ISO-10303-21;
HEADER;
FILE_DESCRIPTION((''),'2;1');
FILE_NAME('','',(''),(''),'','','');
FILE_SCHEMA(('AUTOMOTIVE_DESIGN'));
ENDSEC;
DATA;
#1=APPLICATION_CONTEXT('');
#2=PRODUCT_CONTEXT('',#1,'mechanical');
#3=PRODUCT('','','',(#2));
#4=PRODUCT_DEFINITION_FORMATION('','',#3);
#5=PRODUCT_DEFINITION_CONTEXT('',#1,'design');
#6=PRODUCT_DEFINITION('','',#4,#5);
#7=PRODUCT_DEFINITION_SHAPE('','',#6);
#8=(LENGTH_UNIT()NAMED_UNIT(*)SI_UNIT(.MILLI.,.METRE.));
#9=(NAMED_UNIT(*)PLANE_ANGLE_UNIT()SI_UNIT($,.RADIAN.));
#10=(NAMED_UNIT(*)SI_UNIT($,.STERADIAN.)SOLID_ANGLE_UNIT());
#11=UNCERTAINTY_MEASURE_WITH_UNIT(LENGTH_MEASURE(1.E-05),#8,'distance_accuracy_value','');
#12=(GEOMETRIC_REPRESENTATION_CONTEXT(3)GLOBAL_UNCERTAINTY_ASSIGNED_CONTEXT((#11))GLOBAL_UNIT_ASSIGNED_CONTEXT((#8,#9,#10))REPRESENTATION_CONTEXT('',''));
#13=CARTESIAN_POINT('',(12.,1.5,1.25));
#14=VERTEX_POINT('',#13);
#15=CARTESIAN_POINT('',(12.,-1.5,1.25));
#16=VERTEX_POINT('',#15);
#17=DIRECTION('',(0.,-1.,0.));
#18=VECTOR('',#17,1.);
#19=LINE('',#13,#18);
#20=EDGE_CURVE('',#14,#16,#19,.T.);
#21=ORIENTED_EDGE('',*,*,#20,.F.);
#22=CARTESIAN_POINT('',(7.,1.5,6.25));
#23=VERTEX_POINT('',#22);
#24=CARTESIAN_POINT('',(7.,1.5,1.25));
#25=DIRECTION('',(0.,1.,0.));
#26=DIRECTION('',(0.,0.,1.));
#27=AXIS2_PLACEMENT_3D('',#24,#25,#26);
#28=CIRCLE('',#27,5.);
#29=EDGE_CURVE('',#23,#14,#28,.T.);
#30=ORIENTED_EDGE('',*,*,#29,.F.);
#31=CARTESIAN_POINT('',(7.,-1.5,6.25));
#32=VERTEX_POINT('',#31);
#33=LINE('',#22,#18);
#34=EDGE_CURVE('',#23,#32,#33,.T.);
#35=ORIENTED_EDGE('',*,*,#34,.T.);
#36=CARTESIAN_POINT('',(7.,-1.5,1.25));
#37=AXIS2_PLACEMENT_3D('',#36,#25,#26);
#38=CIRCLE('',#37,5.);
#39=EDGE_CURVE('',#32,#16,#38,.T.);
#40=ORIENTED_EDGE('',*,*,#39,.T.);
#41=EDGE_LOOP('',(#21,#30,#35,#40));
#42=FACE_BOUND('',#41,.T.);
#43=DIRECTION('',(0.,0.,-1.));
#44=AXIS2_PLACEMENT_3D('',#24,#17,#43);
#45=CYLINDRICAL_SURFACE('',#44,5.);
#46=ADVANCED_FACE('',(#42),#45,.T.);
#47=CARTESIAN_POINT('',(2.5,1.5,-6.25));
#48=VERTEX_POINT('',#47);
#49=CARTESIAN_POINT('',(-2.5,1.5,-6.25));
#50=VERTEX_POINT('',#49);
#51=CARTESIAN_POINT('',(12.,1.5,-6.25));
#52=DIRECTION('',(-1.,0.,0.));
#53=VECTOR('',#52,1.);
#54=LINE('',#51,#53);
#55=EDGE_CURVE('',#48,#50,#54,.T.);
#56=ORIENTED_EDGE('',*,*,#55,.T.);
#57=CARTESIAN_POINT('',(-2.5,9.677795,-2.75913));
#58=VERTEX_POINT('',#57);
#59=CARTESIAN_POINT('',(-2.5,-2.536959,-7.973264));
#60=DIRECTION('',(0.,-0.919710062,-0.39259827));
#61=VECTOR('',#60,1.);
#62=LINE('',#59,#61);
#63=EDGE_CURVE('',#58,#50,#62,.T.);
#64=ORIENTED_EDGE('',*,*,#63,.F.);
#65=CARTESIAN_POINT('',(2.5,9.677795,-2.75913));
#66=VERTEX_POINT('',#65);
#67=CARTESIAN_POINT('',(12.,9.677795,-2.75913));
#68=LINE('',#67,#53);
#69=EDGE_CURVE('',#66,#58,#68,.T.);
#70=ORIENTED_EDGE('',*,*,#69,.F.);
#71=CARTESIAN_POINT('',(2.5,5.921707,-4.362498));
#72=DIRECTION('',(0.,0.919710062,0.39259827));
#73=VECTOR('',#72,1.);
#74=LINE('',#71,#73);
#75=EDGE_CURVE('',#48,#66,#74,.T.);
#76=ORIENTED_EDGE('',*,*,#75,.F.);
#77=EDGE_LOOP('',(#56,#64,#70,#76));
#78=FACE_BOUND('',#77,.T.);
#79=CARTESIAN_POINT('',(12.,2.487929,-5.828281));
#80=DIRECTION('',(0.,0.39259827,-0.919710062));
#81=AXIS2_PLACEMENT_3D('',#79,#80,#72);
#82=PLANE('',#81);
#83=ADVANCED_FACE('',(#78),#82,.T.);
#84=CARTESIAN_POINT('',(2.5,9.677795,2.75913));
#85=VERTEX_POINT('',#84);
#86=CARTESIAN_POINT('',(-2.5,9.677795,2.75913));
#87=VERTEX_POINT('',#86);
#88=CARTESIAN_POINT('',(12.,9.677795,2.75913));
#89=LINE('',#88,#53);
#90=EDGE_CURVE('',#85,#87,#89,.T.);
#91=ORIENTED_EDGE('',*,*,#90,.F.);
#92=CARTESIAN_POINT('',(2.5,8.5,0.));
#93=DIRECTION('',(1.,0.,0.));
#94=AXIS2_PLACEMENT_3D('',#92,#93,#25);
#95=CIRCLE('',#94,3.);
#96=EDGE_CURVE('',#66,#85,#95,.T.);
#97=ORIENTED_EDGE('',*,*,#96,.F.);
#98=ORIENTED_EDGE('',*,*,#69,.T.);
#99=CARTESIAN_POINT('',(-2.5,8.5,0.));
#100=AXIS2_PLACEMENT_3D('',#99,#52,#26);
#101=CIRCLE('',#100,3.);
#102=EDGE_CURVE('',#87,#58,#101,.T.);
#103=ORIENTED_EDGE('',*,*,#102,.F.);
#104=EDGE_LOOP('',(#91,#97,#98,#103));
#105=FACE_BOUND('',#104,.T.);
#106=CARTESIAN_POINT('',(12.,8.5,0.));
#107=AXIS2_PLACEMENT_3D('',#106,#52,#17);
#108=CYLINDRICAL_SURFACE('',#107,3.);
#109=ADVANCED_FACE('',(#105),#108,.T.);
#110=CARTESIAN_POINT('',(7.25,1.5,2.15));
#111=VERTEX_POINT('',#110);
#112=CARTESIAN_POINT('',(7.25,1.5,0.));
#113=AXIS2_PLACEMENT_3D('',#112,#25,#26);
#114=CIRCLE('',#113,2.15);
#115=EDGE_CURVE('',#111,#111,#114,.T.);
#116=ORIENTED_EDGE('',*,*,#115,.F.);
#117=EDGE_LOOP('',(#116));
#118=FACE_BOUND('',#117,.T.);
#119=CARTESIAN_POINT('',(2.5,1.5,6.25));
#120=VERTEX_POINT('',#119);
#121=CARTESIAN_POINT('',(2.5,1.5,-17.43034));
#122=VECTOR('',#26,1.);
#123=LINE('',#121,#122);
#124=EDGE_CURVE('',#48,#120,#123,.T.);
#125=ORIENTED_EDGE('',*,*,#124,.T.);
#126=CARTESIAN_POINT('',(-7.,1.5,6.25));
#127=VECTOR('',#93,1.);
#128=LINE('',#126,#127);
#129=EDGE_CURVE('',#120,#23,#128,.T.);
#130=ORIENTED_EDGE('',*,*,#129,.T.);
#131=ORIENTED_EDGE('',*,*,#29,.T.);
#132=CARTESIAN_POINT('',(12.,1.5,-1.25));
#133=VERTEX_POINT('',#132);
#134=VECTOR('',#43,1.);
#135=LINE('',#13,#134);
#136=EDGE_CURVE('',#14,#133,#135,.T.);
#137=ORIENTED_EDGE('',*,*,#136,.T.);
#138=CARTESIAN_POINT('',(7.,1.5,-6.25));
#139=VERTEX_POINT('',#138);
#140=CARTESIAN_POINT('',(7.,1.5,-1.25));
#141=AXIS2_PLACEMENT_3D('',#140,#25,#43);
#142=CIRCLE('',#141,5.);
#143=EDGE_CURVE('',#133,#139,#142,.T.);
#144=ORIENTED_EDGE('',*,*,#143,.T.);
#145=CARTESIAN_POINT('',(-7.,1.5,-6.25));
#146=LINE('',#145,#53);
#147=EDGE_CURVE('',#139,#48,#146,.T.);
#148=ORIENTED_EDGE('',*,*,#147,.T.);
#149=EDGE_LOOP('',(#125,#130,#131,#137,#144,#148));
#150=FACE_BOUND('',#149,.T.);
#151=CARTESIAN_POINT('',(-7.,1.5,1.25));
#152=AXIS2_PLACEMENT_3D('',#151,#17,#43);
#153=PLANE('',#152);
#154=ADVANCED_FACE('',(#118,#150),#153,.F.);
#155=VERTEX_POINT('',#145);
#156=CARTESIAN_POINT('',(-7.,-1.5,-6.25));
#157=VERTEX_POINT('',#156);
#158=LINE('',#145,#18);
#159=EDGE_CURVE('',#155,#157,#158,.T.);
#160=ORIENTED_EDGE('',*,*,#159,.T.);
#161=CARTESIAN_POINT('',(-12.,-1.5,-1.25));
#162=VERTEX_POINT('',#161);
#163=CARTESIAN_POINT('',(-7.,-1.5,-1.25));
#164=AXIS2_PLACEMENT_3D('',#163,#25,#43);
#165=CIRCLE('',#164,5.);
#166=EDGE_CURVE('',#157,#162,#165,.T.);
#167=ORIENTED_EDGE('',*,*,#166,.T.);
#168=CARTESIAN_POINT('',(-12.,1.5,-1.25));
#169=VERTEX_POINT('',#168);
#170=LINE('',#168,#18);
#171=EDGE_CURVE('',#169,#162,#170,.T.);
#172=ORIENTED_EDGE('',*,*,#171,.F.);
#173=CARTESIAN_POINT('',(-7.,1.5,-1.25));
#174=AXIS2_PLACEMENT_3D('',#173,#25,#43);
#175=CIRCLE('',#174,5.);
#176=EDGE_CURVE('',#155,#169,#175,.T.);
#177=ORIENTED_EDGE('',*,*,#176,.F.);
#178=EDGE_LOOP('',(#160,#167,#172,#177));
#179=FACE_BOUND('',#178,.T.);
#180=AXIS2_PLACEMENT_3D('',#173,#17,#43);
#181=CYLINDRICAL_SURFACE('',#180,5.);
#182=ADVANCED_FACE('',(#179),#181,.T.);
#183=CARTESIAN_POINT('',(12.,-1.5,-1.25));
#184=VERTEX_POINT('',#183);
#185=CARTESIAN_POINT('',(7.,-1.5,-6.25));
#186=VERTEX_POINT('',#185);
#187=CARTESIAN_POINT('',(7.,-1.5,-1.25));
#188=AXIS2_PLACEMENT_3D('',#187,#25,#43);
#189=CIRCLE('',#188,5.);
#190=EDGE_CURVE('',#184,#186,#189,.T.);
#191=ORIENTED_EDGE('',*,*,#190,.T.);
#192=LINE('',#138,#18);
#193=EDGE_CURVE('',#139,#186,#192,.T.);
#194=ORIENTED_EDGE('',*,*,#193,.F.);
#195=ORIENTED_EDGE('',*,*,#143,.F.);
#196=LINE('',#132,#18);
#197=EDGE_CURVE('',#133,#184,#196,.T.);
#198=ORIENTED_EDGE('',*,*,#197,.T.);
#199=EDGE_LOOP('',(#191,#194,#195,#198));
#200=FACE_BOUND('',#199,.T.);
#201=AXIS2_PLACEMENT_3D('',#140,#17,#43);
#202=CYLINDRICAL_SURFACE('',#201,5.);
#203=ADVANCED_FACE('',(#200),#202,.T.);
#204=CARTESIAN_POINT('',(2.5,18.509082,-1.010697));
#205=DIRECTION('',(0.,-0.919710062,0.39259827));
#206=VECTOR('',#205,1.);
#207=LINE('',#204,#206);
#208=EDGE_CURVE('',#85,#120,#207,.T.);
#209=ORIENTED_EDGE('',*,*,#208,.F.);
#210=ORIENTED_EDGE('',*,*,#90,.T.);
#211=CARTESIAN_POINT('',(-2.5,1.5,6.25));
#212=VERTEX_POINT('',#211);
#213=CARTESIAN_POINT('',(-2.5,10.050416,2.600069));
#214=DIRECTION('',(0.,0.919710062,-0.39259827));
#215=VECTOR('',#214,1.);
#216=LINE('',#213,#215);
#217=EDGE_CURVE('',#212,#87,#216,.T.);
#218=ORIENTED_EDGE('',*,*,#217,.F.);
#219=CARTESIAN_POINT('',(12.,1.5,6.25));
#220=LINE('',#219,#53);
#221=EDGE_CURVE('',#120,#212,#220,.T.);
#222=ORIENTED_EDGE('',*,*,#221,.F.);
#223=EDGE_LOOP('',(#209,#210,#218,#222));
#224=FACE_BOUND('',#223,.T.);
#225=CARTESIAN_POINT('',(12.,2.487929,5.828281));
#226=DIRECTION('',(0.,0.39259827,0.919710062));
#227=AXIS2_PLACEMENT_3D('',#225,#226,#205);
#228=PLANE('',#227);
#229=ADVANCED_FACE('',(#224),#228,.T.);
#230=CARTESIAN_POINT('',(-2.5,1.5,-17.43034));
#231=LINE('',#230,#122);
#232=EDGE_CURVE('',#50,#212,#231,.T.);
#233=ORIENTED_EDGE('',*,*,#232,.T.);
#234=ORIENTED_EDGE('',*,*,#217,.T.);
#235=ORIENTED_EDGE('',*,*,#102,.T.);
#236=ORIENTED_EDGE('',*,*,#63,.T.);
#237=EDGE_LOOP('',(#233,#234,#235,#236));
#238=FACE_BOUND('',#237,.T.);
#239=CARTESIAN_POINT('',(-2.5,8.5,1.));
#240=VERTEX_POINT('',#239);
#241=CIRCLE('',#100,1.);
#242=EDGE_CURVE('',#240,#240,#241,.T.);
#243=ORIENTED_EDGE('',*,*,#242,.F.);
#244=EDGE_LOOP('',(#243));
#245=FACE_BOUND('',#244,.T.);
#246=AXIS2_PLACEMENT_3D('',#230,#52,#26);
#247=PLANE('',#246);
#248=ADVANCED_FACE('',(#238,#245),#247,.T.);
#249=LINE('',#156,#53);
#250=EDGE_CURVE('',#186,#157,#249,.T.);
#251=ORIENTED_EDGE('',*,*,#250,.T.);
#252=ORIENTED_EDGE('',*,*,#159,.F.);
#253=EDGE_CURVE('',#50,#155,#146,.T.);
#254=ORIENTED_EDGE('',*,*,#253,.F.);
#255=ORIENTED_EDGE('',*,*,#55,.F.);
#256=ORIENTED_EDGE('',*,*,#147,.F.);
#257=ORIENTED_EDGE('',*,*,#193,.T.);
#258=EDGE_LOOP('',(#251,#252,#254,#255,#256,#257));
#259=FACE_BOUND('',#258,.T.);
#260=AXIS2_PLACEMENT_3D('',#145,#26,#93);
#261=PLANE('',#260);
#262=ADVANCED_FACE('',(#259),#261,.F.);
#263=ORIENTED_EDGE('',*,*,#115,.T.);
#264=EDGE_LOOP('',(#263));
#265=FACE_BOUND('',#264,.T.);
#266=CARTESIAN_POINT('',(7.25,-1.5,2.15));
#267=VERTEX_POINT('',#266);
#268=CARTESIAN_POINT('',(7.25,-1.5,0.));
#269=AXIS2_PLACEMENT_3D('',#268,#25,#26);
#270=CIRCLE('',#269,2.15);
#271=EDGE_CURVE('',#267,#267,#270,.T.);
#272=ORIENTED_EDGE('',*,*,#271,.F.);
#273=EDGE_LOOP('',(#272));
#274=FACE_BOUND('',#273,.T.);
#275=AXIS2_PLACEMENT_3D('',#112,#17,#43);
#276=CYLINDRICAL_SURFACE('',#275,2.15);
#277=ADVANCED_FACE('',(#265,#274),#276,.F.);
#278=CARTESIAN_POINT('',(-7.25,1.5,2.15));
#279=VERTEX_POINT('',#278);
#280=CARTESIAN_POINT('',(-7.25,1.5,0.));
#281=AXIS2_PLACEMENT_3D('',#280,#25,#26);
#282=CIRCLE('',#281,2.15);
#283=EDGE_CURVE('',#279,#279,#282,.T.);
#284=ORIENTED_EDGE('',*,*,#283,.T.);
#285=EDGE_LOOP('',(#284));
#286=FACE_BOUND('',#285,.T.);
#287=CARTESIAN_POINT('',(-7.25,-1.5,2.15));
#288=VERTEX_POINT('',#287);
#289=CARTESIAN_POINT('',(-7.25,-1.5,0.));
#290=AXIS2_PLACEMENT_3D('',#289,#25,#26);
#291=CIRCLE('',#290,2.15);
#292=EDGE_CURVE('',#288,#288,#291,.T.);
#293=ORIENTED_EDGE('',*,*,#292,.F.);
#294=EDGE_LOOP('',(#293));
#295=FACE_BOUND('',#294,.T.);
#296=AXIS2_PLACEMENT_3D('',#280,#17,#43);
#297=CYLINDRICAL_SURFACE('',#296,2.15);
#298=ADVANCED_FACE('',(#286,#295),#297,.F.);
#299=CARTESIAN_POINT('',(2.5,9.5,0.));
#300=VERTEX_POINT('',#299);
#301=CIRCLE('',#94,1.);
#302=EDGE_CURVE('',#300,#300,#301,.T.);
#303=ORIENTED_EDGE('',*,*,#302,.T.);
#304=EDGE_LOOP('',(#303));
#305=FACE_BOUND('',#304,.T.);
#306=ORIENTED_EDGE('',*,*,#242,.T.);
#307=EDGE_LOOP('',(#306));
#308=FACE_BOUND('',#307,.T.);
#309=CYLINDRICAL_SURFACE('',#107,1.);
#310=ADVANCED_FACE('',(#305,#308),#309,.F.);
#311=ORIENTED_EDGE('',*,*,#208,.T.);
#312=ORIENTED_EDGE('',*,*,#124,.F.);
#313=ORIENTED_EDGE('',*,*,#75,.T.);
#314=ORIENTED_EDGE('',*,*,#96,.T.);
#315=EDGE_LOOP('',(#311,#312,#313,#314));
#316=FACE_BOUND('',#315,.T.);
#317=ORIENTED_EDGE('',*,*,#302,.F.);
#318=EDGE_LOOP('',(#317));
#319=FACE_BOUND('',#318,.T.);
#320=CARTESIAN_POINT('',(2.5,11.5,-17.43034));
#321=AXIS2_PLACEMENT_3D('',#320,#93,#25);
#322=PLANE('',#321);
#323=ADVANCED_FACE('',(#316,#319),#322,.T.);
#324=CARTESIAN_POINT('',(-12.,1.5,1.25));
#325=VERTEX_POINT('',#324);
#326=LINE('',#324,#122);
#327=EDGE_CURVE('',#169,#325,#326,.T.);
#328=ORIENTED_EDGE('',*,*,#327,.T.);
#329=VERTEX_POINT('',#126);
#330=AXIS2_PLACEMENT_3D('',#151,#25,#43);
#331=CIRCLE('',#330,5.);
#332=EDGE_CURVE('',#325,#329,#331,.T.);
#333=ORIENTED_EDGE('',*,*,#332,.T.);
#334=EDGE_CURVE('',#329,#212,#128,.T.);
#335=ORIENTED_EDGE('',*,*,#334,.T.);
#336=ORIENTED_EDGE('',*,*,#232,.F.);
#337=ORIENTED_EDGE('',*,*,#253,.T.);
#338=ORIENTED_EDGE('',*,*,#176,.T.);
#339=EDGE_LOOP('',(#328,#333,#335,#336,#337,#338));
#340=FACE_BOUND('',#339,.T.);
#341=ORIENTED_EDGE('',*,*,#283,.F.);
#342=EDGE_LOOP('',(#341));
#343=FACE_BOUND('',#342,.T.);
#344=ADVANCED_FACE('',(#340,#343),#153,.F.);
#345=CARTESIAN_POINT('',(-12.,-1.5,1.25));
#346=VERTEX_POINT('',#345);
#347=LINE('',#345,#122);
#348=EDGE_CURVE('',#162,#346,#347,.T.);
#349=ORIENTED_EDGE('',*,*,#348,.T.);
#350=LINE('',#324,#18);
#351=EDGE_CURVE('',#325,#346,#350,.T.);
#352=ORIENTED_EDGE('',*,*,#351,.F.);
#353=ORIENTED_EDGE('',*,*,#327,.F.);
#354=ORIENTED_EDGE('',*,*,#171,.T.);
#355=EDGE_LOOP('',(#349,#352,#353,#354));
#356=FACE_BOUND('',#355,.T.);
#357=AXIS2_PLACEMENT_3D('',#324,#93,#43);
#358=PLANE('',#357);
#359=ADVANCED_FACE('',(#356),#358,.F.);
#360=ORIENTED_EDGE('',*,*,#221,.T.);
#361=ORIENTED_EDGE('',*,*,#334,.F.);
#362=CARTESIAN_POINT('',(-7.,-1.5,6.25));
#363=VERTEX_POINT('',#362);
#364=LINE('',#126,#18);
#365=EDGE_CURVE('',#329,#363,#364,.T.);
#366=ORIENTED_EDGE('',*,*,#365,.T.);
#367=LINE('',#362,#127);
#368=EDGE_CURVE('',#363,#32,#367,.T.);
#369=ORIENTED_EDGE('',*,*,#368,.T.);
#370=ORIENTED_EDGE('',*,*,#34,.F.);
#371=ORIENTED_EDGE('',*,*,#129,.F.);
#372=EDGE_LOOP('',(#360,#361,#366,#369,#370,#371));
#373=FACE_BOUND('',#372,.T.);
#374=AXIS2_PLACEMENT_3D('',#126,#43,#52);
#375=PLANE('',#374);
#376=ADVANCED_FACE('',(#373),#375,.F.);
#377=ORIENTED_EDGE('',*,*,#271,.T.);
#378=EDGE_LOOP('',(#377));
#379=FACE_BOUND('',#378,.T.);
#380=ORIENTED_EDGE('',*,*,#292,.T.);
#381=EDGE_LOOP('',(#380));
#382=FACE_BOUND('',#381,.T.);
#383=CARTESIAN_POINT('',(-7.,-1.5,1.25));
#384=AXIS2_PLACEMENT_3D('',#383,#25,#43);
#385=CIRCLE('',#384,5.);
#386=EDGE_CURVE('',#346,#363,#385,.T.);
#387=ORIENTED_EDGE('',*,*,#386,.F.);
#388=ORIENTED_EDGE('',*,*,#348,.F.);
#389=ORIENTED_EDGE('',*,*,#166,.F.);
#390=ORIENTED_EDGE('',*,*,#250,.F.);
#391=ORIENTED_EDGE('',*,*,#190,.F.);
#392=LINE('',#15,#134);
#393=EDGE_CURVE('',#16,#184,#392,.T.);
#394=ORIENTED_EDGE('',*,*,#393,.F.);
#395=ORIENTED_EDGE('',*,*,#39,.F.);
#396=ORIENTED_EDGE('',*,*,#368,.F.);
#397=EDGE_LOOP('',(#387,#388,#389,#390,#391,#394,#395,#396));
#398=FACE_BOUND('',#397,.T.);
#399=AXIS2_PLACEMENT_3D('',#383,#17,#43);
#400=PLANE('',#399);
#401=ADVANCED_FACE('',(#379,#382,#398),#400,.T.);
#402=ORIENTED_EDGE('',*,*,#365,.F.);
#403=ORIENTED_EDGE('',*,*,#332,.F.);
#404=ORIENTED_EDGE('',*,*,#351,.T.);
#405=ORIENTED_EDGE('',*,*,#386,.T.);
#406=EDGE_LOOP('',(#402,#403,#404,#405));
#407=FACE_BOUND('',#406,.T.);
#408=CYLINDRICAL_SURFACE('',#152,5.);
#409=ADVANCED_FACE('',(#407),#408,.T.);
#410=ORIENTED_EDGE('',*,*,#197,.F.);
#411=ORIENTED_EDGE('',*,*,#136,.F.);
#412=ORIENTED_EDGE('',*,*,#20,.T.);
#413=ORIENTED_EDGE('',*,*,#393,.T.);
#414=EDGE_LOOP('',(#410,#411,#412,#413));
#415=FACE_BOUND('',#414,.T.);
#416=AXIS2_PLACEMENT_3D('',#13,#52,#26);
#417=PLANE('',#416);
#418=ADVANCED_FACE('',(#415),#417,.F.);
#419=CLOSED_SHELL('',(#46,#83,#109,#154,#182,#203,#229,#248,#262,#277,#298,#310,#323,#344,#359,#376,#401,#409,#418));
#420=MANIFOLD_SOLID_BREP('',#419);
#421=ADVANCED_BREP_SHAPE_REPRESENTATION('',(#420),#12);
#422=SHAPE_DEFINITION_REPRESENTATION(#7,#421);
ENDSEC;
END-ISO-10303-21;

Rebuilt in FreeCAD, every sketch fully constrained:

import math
import FreeCAD as App
import Part
import Sketcher

V = App.Vector


def add_polygon(sketch, points):
    """Adds a closed chain of lines whose ends are joined by coincident constraints."""
    first, n = sketch.GeometryCount, len(points)
    for a, b in zip(points, points[1:] + points[:1]):
        sketch.addGeometry(Part.LineSegment(App.Vector(*a, 0), App.Vector(*b, 0)), False)
    for i in range(n):
        sketch.addConstraint(Sketcher.Constraint("Coincident", first + i, 2, first + (i + 1) % n, 1))

doc = App.newDocument("Part")
body = doc.addObject("PartDesign::Body", "Body")

# Sketch on XZ plane
sketch1 = doc.addObject("Sketcher::SketchObject", "Sketch")
body.addObject(sketch1)
sketch1.AttachmentSupport = (doc.XZ_Plane, [""])
sketch1.MapMode = "FlatFace"
sketch1.addGeometry([
    Part.LineSegment(V(-7, 6.2, 0), V(7, 6.2, 0)),  # 0
    Part.ArcOfCircle(Part.Circle(V(7, 1.2, 0), V(0, 0, 1), 5), math.radians(0), math.radians(90)),  # 1
    Part.LineSegment(V(12, 1.2, 0), V(12, -1.2, 0)),  # 2
    Part.ArcOfCircle(Part.Circle(V(7, -1.2, 0), V(0, 0, 1), 5), math.radians(-90), math.radians(0)),  # 3
    Part.LineSegment(V(7, -6.2, 0), V(-7, -6.2, 0)),  # 4
    Part.ArcOfCircle(Part.Circle(V(-7, -1.2, 0), V(0, 0, 1), 5), math.radians(180), math.radians(270)),  # 5
    Part.LineSegment(V(-12, -1.2, 0), V(-12, 1.2, 0)),  # 6
    Part.ArcOfCircle(Part.Circle(V(-7, 1.2, 0), V(0, 0, 1), 5), math.radians(90), math.radians(180)),  # 7
    Part.Circle(V(-7.2, 0, 0), V(0, 0, 1), 2.1),  # 8
    Part.Circle(V(7.2, 0, 0), V(0, 0, 1), 2.1),  # 9
], False)
sketch1.addConstraint([
    Sketcher.Constraint("Tangent", 0, 2, 1, 2),
    Sketcher.Constraint("Tangent", 1, 1, 2, 1),
    Sketcher.Constraint("Tangent", 2, 2, 3, 2),
    Sketcher.Constraint("Tangent", 3, 1, 4, 1),
    Sketcher.Constraint("Tangent", 4, 2, 5, 2),
    Sketcher.Constraint("Tangent", 5, 1, 6, 1),
    Sketcher.Constraint("Tangent", 6, 2, 7, 2),
    Sketcher.Constraint("Tangent", 7, 1, 0, 1),
    Sketcher.Constraint("Horizontal", 0),
    Sketcher.Constraint("Vertical", 2),
    Sketcher.Constraint("Horizontal", 4),
    Sketcher.Constraint("Vertical", 6),
    Sketcher.Constraint("Equal", 1, 3),
    Sketcher.Constraint("Equal", 3, 5),
    Sketcher.Constraint("Equal", 5, 7),
    Sketcher.Constraint("Equal", 8, 9),
    Sketcher.Constraint("Symmetric", 1, 3, 5, 3, -1, 1),
    Sketcher.Constraint("Symmetric", 8, 3, 9, 3, -1, 1),
    Sketcher.Constraint("PointOnObject", 8, 3, -1),
    Sketcher.Constraint("Radius", 1, 5.0),
    Sketcher.Constraint("Diameter", 8, 4.3),
    Sketcher.Constraint("DistanceX", 0, 1, 0, 2, 14.0),
    Sketcher.Constraint("DistanceY", 2, 2, 2, 1, 2.5),
    Sketcher.Constraint("DistanceX", 8, 3, 9, 3, 14.5),
])
pad1 = doc.addObject("PartDesign::Pad", "Pad")
body.addObject(pad1)
pad1.Profile = sketch1
pad1.Length = 3
pad1.Midplane = True

# Sketch on XY plane
sketch2 = doc.addObject("Sketcher::SketchObject", "Sketch001")
body.addObject(sketch2)
sketch2.AttachmentSupport = (doc.XY_Plane, [""])
sketch2.MapMode = "FlatFace"
sketch2.AttachmentOffset = App.Placement(V(0, 0, 6.25), App.Rotation())
add_polygon(sketch2, [(-2, 12), (-2, 2), (2, 2), (2, 12)])  # lines 0-3
sketch2.addConstraint([
    Sketcher.Constraint("Vertical", 0),
    Sketcher.Constraint("Horizontal", 1),
    Sketcher.Constraint("Vertical", 2),
    Sketcher.Constraint("Horizontal", 3),
    Sketcher.Constraint("DistanceX", 1, 1, 1, 2, 5.0),
    Sketcher.Constraint("DistanceY", 0, 2, 0, 1, 10.0),
    Sketcher.Constraint("DistanceX", 0, 2, -1, 1, 2.5),
    Sketcher.Constraint("DistanceY", -1, 1, 0, 2, 1.5),
])
pad2 = doc.addObject("PartDesign::Pad", "Pad001")
body.addObject(pad2)
pad2.Profile = sketch2
pad2.Length = 12.5
pad2.Reversed = True

# Sketch on YZ plane
sketch3 = doc.addObject("Sketcher::SketchObject", "Sketch002")
body.addObject(sketch3)
sketch3.AttachmentSupport = (doc.YZ_Plane, [""])
sketch3.MapMode = "FlatFace"
sketch3.AttachmentOffset = App.Placement(V(0, 0, -2.5), App.Rotation())
sketch3.addGeometry([
    Part.LineSegment(V(1.5, -6.2, 0), V(9.7, -2.8, 0)),  # 0
    Part.ArcOfCircle(Part.Circle(V(8.5, 0, 0), V(0, 0, 1), 3), math.radians(-67), math.radians(0)),  # 1
    Part.LineSegment(V(11.5, 0, 0), V(11.5, -6.2, 0)),  # 2
    Part.LineSegment(V(11.5, -6.2, 0), V(1.5, -6.2, 0)),  # 3
    Part.LineSegment(V(11.5, 6.2, 0), V(11.5, 0, 0)),  # 4
    Part.ArcOfCircle(Part.Circle(V(8.5, 0, 0), V(0, 0, 1), 3), math.radians(0), math.radians(67)),  # 5
    Part.LineSegment(V(9.7, 2.8, 0), V(1.5, 6.2, 0)),  # 6
    Part.LineSegment(V(1.5, 6.2, 0), V(11.5, 6.2, 0)),  # 7
    Part.Circle(V(8.5, 0, 0), V(0, 0, 1), 1),  # 8
], False)
sketch3.addConstraint([
    Sketcher.Constraint("Tangent", 0, 2, 1, 1),
    Sketcher.Constraint("Tangent", 1, 2, 2, 1),
    Sketcher.Constraint("Coincident", 2, 2, 3, 1),
    Sketcher.Constraint("Coincident", 3, 2, 0, 1),
    Sketcher.Constraint("Tangent", 4, 2, 5, 1),
    Sketcher.Constraint("Tangent", 5, 2, 6, 1),
    Sketcher.Constraint("Coincident", 6, 2, 7, 1),
    Sketcher.Constraint("Coincident", 7, 2, 4, 1),
    Sketcher.Constraint("Vertical", 2),
    Sketcher.Constraint("Horizontal", 3),
    Sketcher.Constraint("Vertical", 4),
    Sketcher.Constraint("Horizontal", 7),
    Sketcher.Constraint("Coincident", 5, 3, 1, 3),
    Sketcher.Constraint("Coincident", 8, 3, 1, 3),
    Sketcher.Constraint("Equal", 1, 5),
    Sketcher.Constraint("Symmetric", 0, 2, 5, 2, -1),
    Sketcher.Constraint("Vertical", 3, 2, 6, 2),
    Sketcher.Constraint("Diameter", 8, 2.0),
    Sketcher.Constraint("Radius", 1, 3.0),
    Sketcher.Constraint("DistanceX", 3, 2, 3, 1, 10.0),
    Sketcher.Constraint("DistanceY", 2, 2, 2, 1, 6.25),
    Sketcher.Constraint("DistanceX", -1, 1, 1, 3, 8.5),
])
pocket1 = doc.addObject("PartDesign::Pocket", "Pocket")
body.addObject(pocket1)
pocket1.Profile = sketch3
pocket1.Type = "ThroughAll"
pocket1.Midplane = True

doc.recompute()
